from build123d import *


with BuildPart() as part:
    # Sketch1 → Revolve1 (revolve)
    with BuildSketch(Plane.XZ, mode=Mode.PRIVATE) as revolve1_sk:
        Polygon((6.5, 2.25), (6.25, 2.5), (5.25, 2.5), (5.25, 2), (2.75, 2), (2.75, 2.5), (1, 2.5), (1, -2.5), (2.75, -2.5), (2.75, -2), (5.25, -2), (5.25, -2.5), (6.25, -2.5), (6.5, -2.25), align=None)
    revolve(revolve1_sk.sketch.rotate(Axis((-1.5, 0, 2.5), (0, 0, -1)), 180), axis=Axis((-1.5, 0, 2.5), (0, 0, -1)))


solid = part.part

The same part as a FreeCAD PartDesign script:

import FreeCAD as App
import Part
import Sketcher
from FreeCAD import Vector

doc = App.newDocument("Part")
body = doc.addObject("PartDesign::Body", "Body")

# Sketch on XZ plane
sketch1 = body.newObject("Sketcher::SketchObject", "Sketch")
sketch1.AttachmentSupport = (doc.getObject("XZ_Plane"), [""])
sketch1.MapMode = "FlatFace"
sketch1.addGeometry(Part.LineSegment(Vector(6.5, 2.25, 0), Vector(6.25, 2.5, 0)), False)
sketch1.addGeometry(Part.LineSegment(Vector(6.25, 2.5, 0), Vector(5.25, 2.5, 0)), False)
sketch1.addGeometry(Part.LineSegment(Vector(5.25, 2.5, 0), Vector(5.25, 2, 0)), False)
sketch1.addGeometry(Part.LineSegment(Vector(5.25, 2, 0), Vector(2.75, 2, 0)), False)
sketch1.addGeometry(Part.LineSegment(Vector(2.75, 2, 0), Vector(2.75, 2.5, 0)), False)
sketch1.addGeometry(Part.LineSegment(Vector(2.75, 2.5, 0), Vector(1, 2.5, 0)), False)
sketch1.addGeometry(Part.LineSegment(Vector(1, 2.5, 0), Vector(1, -2.5, 0)), False)
sketch1.addGeometry(Part.LineSegment(Vector(1, -2.5, 0), Vector(2.75, -2.5, 0)), False)
sketch1.addGeometry(Part.LineSegment(Vector(2.75, -2.5, 0), Vector(2.75, -2, 0)), False)
sketch1.addGeometry(Part.LineSegment(Vector(2.75, -2, 0), Vector(5.25, -2, 0)), False)
sketch1.addGeometry(Part.LineSegment(Vector(5.25, -2, 0), Vector(5.25, -2.5, 0)), False)
sketch1.addGeometry(Part.LineSegment(Vector(5.25, -2.5, 0), Vector(6.25, -2.5, 0)), False)
sketch1.addGeometry(Part.LineSegment(Vector(6.25, -2.5, 0), Vector(6.5, -2.25, 0)), False)
sketch1.addGeometry(Part.LineSegment(Vector(6.5, -2.25, 0), Vector(6.5, 2.25, 0)), False)
sketch1.addGeometry(Part.LineSegment(Vector(-1.5, 2.5, 0), Vector(-1.5, -2.5, 0)), True)  # axis
sketch1.addConstraint(Sketcher.Constraint("Coincident", 0, 2, 1, 1))
sketch1.addConstraint(Sketcher.Constraint("Coincident", 1, 2, 2, 1))
sketch1.addConstraint(Sketcher.Constraint("Coincident", 2, 2, 3, 1))
sketch1.addConstraint(Sketcher.Constraint("Coincident", 3, 2, 4, 1))
sketch1.addConstraint(Sketcher.Constraint("Coincident", 4, 2, 5, 1))
sketch1.addConstraint(Sketcher.Constraint("Coincident", 5, 2, 6, 1))
sketch1.addConstraint(Sketcher.Constraint("Coincident", 6, 2, 7, 1))
sketch1.addConstraint(Sketcher.Constraint("Coincident", 7, 2, 8, 1))
sketch1.addConstraint(Sketcher.Constraint("Coincident", 8, 2, 9, 1))
sketch1.addConstraint(Sketcher.Constraint("Coincident", 9, 2, 10, 1))
sketch1.addConstraint(Sketcher.Constraint("Coincident", 10, 2, 11, 1))
sketch1.addConstraint(Sketcher.Constraint("Coincident", 11, 2, 12, 1))
sketch1.addConstraint(Sketcher.Constraint("Coincident", 12, 2, 13, 1))
sketch1.addConstraint(Sketcher.Constraint("Coincident", 13, 2, 0, 1))
sketch1.addConstraint(Sketcher.Constraint("Horizontal", 1))
sketch1.addConstraint(Sketcher.Constraint("Vertical", 2))
sketch1.addConstraint(Sketcher.Constraint("Horizontal", 3))
sketch1.addConstraint(Sketcher.Constraint("Vertical", 4))
sketch1.addConstraint(Sketcher.Constraint("Horizontal", 5))
sketch1.addConstraint(Sketcher.Constraint("Vertical", 6))
sketch1.addConstraint(Sketcher.Constraint("Horizontal", 7))
sketch1.addConstraint(Sketcher.Constraint("Vertical", 8))
sketch1.addConstraint(Sketcher.Constraint("Horizontal", 9))
sketch1.addConstraint(Sketcher.Constraint("Vertical", 10))
sketch1.addConstraint(Sketcher.Constraint("Horizontal", 11))
sketch1.addConstraint(Sketcher.Constraint("Vertical", 13))
sketch1.addConstraint(Sketcher.Constraint("Vertical", 14))
sketch1.addConstraint(Sketcher.Constraint("Symmetric", 4, 2, 7, 2, -1))
sketch1.addConstraint(Sketcher.Constraint("Symmetric", 2, 2, 9, 2, -1))
sketch1.addConstraint(Sketcher.Constraint("Symmetric", 0, 2, 11, 2, -1))
sketch1.addConstraint(Sketcher.Constraint("Perpendicular", 0, 12))
sketch1.addConstraint(Sketcher.Constraint("Horizontal", 1, 2, 4, 2))
sketch1.addConstraint(Sketcher.Constraint("Horizontal", 5, 2, 14, 1))
sketch1.addConstraint(Sketcher.Constraint("Horizontal", 11, 2, 14, 2))
sketch1.addConstraint(Sketcher.Constraint("Equal", 0, 12))
sketch1.addConstraint(Sketcher.Constraint("DistanceX", 1, 2, 1, 1, 1.0))
sketch1.addConstraint(Sketcher.Constraint("DistanceY", 6, 2, 6, 1, 5.0))
sketch1.addConstraint(Sketcher.Constraint("DistanceX", 3, 2, 3, 1, 2.5))
sketch1.addConstraint(Sketcher.Constraint("DistanceY", 2, 2, 2, 1, 0.5))
sketch1.addConstraint(Sketcher.Constraint("DistanceY", 13, 1, 13, 2, 4.5))
sketch1.addConstraint(Sketcher.Constraint("DistanceX", -1, 1, 5, 2, 1.0))
sketch1.addConstraint(Sketcher.Constraint("DistanceX", 5, 2, 5, 1, 1.75))
sketch1.addConstraint(Sketcher.Constraint("DistanceX", 14, 1, -1, 1, 1.5))
revolution = body.newObject("PartDesign::Revolution", "Revolution")
revolution.Profile = sketch1
revolution.ReferenceAxis = (sketch1, ["Axis0"])
revolution.Angle = 360

doc.recompute()
